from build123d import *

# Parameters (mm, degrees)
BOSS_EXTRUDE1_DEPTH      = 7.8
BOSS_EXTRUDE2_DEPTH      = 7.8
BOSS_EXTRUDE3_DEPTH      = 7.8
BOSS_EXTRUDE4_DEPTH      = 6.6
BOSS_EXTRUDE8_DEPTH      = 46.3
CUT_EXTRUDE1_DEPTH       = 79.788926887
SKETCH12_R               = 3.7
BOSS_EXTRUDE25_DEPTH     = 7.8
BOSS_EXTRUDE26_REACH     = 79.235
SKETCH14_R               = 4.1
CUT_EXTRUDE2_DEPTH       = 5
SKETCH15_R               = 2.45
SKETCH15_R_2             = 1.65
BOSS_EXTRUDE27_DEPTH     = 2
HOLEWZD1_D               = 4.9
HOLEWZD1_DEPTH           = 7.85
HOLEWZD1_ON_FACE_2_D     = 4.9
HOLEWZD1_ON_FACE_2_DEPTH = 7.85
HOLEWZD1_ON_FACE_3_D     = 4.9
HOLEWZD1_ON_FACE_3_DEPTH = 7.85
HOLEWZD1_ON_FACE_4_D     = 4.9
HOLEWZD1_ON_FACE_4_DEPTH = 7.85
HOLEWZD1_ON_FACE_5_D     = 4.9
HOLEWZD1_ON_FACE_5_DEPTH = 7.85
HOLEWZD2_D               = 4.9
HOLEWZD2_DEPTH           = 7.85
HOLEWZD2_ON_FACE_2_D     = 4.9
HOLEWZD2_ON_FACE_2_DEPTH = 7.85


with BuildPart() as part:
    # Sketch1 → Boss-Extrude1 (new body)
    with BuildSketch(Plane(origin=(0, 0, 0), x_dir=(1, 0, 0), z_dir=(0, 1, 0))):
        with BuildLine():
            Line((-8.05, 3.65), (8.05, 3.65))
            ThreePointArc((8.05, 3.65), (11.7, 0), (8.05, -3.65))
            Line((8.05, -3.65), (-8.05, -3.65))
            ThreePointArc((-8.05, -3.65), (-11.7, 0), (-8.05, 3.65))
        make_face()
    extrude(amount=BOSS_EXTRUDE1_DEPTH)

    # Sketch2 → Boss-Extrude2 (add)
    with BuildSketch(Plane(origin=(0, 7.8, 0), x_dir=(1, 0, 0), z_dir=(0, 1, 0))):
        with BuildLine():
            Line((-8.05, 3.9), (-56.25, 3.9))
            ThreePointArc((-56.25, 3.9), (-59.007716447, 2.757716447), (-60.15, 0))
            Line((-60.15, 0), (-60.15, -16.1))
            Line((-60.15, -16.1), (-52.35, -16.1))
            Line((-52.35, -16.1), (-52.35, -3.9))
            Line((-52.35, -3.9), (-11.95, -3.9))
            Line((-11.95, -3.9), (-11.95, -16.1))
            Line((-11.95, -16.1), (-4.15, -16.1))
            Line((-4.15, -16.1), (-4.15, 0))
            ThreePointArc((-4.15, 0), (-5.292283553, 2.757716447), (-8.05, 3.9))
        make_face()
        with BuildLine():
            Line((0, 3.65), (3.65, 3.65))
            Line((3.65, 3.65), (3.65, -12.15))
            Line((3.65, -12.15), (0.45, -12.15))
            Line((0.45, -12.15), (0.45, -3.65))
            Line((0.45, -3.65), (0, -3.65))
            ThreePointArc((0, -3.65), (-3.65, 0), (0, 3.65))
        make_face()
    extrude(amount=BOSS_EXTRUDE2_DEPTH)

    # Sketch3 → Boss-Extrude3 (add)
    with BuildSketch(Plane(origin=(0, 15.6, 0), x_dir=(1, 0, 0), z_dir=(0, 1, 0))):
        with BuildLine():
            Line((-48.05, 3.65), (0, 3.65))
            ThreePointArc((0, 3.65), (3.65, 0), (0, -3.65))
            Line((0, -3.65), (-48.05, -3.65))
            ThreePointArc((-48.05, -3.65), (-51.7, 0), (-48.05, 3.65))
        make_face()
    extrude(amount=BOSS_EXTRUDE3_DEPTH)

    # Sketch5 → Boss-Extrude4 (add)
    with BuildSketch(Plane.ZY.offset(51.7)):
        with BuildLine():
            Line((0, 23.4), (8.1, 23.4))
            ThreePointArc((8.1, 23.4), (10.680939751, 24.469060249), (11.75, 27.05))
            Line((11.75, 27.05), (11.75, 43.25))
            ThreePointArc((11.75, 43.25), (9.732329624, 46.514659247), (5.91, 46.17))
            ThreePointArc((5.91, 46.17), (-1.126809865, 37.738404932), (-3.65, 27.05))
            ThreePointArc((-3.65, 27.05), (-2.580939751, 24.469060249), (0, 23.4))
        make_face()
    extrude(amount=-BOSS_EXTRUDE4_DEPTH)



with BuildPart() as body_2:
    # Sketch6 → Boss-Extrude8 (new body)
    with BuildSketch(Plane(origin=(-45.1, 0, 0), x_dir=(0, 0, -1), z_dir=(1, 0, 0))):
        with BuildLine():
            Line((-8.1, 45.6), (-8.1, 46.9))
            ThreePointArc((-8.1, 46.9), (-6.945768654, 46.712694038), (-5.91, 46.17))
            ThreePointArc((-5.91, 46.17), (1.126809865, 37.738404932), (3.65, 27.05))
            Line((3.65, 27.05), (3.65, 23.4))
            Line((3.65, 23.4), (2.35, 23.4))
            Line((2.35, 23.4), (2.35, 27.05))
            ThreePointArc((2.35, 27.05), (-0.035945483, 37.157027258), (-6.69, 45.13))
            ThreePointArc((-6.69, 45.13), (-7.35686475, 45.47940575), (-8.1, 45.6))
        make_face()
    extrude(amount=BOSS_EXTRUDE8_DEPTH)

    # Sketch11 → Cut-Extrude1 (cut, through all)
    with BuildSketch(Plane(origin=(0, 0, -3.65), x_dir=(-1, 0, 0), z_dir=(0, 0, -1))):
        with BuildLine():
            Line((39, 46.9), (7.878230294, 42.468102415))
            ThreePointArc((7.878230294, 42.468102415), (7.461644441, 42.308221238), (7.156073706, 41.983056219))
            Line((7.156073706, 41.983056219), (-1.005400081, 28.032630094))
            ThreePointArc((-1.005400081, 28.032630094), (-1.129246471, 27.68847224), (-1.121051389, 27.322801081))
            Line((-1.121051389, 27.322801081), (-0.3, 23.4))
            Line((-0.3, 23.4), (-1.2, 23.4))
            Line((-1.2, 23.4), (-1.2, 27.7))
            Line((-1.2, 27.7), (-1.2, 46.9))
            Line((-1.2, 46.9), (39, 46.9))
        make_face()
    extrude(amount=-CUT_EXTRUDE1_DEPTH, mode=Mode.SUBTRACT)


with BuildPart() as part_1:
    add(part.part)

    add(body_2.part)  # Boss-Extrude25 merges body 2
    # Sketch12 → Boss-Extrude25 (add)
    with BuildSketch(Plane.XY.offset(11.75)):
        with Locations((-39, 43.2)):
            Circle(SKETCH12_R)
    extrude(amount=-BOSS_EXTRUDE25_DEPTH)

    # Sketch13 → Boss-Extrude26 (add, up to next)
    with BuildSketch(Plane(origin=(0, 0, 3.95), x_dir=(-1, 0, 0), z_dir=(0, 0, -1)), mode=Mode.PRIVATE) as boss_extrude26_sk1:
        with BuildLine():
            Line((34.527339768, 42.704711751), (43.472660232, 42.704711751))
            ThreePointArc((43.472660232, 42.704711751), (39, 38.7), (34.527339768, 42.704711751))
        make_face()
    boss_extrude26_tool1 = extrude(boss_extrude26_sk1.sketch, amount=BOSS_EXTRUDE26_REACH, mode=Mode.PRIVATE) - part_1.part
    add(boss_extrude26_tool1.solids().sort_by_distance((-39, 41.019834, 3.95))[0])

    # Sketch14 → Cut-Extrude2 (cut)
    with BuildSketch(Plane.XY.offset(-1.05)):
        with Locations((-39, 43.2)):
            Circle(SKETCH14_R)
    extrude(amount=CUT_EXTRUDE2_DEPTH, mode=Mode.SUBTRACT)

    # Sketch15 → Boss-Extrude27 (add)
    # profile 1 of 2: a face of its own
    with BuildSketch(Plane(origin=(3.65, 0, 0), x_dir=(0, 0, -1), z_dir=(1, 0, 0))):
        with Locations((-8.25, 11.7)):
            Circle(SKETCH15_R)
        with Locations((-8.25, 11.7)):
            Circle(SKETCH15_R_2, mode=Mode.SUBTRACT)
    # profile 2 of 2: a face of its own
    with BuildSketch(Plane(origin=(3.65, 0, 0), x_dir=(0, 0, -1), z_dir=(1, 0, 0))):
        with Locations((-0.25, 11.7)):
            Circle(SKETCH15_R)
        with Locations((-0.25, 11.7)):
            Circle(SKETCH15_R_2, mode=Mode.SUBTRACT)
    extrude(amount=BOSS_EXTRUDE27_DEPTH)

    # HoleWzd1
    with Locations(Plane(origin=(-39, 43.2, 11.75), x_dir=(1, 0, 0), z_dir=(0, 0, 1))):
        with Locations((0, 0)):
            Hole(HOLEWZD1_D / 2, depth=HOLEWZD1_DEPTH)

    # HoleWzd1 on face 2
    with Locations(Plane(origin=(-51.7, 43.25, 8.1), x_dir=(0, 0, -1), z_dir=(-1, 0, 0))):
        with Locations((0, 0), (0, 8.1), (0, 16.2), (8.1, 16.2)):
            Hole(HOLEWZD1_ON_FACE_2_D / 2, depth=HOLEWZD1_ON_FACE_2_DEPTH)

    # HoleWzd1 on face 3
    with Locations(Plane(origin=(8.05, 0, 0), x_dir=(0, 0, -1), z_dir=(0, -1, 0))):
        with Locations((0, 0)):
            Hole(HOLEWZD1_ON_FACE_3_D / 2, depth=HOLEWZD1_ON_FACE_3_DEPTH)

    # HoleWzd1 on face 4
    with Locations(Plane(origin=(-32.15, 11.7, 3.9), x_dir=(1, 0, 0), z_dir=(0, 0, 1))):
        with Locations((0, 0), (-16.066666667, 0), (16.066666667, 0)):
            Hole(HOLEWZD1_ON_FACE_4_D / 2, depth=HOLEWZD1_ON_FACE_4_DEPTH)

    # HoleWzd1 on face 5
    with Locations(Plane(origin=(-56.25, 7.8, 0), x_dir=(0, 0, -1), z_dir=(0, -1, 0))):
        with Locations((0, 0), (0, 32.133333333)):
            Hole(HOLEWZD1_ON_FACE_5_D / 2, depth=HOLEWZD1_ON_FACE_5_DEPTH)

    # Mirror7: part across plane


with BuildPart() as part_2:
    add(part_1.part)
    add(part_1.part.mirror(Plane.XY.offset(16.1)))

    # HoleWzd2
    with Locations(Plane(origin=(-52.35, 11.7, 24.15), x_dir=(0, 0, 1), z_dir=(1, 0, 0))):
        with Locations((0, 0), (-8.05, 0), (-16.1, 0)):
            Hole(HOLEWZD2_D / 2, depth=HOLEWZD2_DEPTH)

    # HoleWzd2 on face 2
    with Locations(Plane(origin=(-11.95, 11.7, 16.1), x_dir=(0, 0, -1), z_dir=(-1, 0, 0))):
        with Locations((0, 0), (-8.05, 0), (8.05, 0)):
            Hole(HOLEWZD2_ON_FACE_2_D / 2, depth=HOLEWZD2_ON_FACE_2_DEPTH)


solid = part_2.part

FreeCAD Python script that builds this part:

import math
import FreeCAD as App
import Part
import Sketcher

V = App.Vector

doc = App.newDocument("Part")
body = doc.addObject("PartDesign::Body", "Body")

# Sketch on XZ plane
sketch1 = body.newObject("Sketcher::SketchObject", "Sketch")
sketch1.AttachmentSupport = (doc.getObject("XZ_Plane"), [""])
sketch1.MapMode = "FlatFace"
sketch1.addGeometry([
    Part.LineSegment(V(8.1, -3.6, 0), V(-8.1, -3.6, 0)),
    Part.ArcOfCircle(Part.Circle(V(-8.1, 0, 0), V(0, 0, 1), 3.6), math.radians(90), math.radians(270)),
    Part.LineSegment(V(-8.1, 3.6, 0), V(8.1, 3.6, 0)),
    Part.ArcOfCircle(Part.Circle(V(8.1, 0, 0), V(0, 0, 1), 3.6), math.radians(-90), math.radians(90)),
], False)
sketch1.addConstraint([
    Sketcher.Constraint("Tangent", 0, 2, 1, 2),
    Sketcher.Constraint("Tangent", 1, 1, 2, 1),
    Sketcher.Constraint("Tangent", 2, 2, 3, 2),
    Sketcher.Constraint("Tangent", 3, 1, 0, 1),
    Sketcher.Constraint("Horizontal", 0),
    Sketcher.Constraint("Horizontal", 2),
    Sketcher.Constraint("Symmetric", 1, 3, 3, 3, -1, 1),
    Sketcher.Constraint("Radius", 1, 3.65),
    Sketcher.Constraint("DistanceX", 0, 2, 0, 1, 16.1),
])
pad1 = body.newObject("PartDesign::Pad", "Pad")
pad1.Profile = sketch1
pad1.Length = 7.8
pad1.Reversed = True

# Sketch on XZ plane
sketch2 = body.newObject("Sketcher::SketchObject", "Sketch001")
sketch2.AttachmentSupport = (doc.getObject("XZ_Plane"), [""])
sketch2.MapMode = "FlatFace"
sketch2.AttachmentOffset = App.Placement(V(0, 0, -7.8), App.Rotation())
sketch2.addGeometry([
    Part.LineSegment(V(-8.05, -3.9, 0), V(-56.25, -3.9, 0)),  # 0
    Part.ArcOfCircle(Part.Circle(V(-56.25, 0, 0), V(0, 0, 1), 3.9), math.radians(180), math.radians(270)),  # 1
    Part.LineSegment(V(-60.15, 0, 0), V(-60.15, 16.1, 0)),  # 2
    Part.LineSegment(V(-60.15, 16.1, 0), V(-52.35, 16.1, 0)),  # 3
    Part.LineSegment(V(-52.35, 16.1, 0), V(-52.35, 3.9, 0)),  # 4
    Part.LineSegment(V(-52.35, 3.9, 0), V(-11.95, 3.9, 0)),  # 5
    Part.LineSegment(V(-11.95, 3.9, 0), V(-11.95, 16.1, 0)),  # 6
    Part.LineSegment(V(-11.95, 16.1, 0), V(-4.15, 16.1, 0)),  # 7
    Part.LineSegment(V(-4.15, 16.1, 0), V(-4.15, 0, 0)),  # 8
    Part.ArcOfCircle(Part.Circle(V(-8.05, 0, 0), V(0, 0, 1), 3.9), math.radians(-90), math.radians(0)),  # 9
    Part.LineSegment(V(3.65, -3.65, 0), V(0, -3.65, 0)),  # 10
    Part.ArcOfCircle(Part.Circle(V(0, 0, 0), V(0, 0, 1), 3.65), math.radians(90), math.radians(270)),  # 11
    Part.LineSegment(V(0, 3.65, 0), V(0.45, 3.65, 0)),  # 12
    Part.LineSegment(V(0.45, 3.65, 0), V(0.45, 12.15, 0)),  # 13
    Part.LineSegment(V(0.45, 12.15, 0), V(3.65, 12.15, 0)),  # 14
    Part.LineSegment(V(3.65, 12.15, 0), V(3.65, -3.65, 0)),  # 15
], False)
sketch2.addConstraint([
    Sketcher.Constraint("Tangent", 0, 2, 1, 2),
    Sketcher.Constraint("Tangent", 1, 1, 2, 1),
    Sketcher.Constraint("Coincident", 2, 2, 3, 1),
    Sketcher.Constraint("Coincident", 3, 2, 4, 1),
    Sketcher.Constraint("Coincident", 4, 2, 5, 1),
    Sketcher.Constraint("Coincident", 5, 2, 6, 1),
    Sketcher.Constraint("Coincident", 6, 2, 7, 1),
    Sketcher.Constraint("Coincident", 7, 2, 8, 1),
    Sketcher.Constraint("Tangent", 8, 2, 9, 2),
    Sketcher.Constraint("Tangent", 9, 1, 0, 1),
    Sketcher.Constraint("Tangent", 10, 2, 11, 2),
    Sketcher.Constraint("Tangent", 11, 1, 12, 1),
    Sketcher.Constraint("Coincident", 12, 2, 13, 1),
    Sketcher.Constraint("Coincident", 13, 2, 14, 1),
    Sketcher.Constraint("Coincident", 14, 2, 15, 1),
    Sketcher.Constraint("Coincident", 15, 2, 10, 1),
    Sketcher.Constraint("Horizontal", 0),
    Sketcher.Constraint("Vertical", 2),
    Sketcher.Constraint("Horizontal", 3),
    Sketcher.Constraint("Vertical", 4),
    Sketcher.Constraint("Horizontal", 5),
    Sketcher.Constraint("Vertical", 6),
    Sketcher.Constraint("Horizontal", 7),
    Sketcher.Constraint("Vertical", 8),
    Sketcher.Constraint("Horizontal", 10),
    Sketcher.Constraint("Horizontal", 12),
    Sketcher.Constraint("Vertical", 13),
    Sketcher.Constraint("Horizontal", 14),
    Sketcher.Constraint("Vertical", 15),
    Sketcher.Constraint("Coincident", 11, 3, -1, 1),
    Sketcher.Constraint("Equal", 1, 9),
    Sketcher.Constraint("PointOnObject", 1, 3, -1),
    Sketcher.Constraint("Horizontal", 3, 2, 6, 2),
    Sketcher.Constraint("Equal", 3, 7),
    Sketcher.Constraint("Radius", 1, 3.9),
    Sketcher.Constraint("Radius", 11, 3.65),
    Sketcher.Constraint("DistanceX", 0, 2, 0, 1, 48.2),
    Sketcher.Constraint("DistanceX", 3, 1, 3, 2, 7.8),
    Sketcher.Constraint("DistanceX", 14, 1, 14, 2, 3.2),
    Sketcher.Constraint("DistanceY", 2, 1, 2, 2, 16.1),
    Sketcher.Constraint("DistanceY", 4, 2, 4, 1, 12.2),
    Sketcher.Constraint("DistanceY", 13, 1, 13, 2, 8.5),
    Sketcher.Constraint("DistanceX", 10, 2, 10, 1, 3.65),
    Sketcher.Constraint("DistanceX", 8, 2, 12, 2, 4.6),
])
pad2 = body.newObject("PartDesign::Pad", "Pad001")
pad2.Profile = sketch2
pad2.Length = 7.8
pad2.Reversed = True

# Sketch on XZ plane
sketch3 = body.newObject("Sketcher::SketchObject", "Sketch002")
sketch3.AttachmentSupport = (doc.getObject("XZ_Plane"), [""])
sketch3.MapMode = "FlatFace"
sketch3.AttachmentOffset = App.Placement(V(0, 0, -15.6), App.Rotation())
sketch3.addGeometry([
    Part.LineSegment(V(0, -3.6, 0), V(-48, -3.6, 0)),
    Part.ArcOfCircle(Part.Circle(V(-48, 0, 0), V(0, 0, 1), 3.6), math.radians(90), math.radians(270)),
    Part.LineSegment(V(-48, 3.6, 0), V(0, 3.6, 0)),
    Part.ArcOfCircle(Part.Circle(V(0, 0, 0), V(0, 0, 1), 3.6), math.radians(-90), math.radians(90)),
], False)
sketch3.addConstraint([
    Sketcher.Constraint("Tangent", 0, 2, 1, 2),
    Sketcher.Constraint("Tangent", 1, 1, 2, 1),
    Sketcher.Constraint("Tangent", 2, 2, 3, 2),
    Sketcher.Constraint("Tangent", 3, 1, 0, 1),
    Sketcher.Constraint("Horizontal", 0),
    Sketcher.Constraint("Horizontal", 2),
    Sketcher.Constraint("Coincident", 3, 3, -1, 1),
    Sketcher.Constraint("Radius", 1, 3.65),
    Sketcher.Constraint("DistanceX", 0, 2, 0, 1, 48.05),
])
pad3 = body.newObject("PartDesign::Pad", "Pad002")
pad3.Profile = sketch3
pad3.Length = 7.8
pad3.Reversed = True

# Sketch on YZ plane
sketch4 = body.newObject("Sketcher::SketchObject", "Sketch003")
sketch4.AttachmentSupport = (doc.getObject("YZ_Plane"), [""])
sketch4.MapMode = "FlatFace"
sketch4.AttachmentOffset = App.Placement(V(0, 0, -51.7), App.Rotation())
sketch4.addGeometry([
    Part.LineSegment(V(23.4, 0, 0), V(23.4, 8.1, 0)),  # 0
    Part.ArcOfCircle(Part.Circle(V(27.1, 8.1, 0), V(0, 0, 1), 3.7), math.radians(90), math.radians(180)),  # 1
    Part.LineSegment(V(27.1, 11.8, 0), V(43.2, 11.8, 0)),  # 2
    Part.ArcOfCircle(Part.Circle(V(43.2, 8.1, 0), V(0, 0, 1), 3.6), math.radians(-37), math.radians(90)),  # 3
    Part.ArcOfCircle(Part.Circle(V(27.1, 20.3, 0), V(0, 0, 1), 23.9), math.radians(-90), math.radians(-37)),  # 4
    Part.ArcOfCircle(Part.Circle(V(27.1, 0, 0), V(0, 0, 1), 3.7), math.radians(-180), math.radians(-90)),  # 5
], False)
sketch4.addConstraint([
    Sketcher.Constraint("Tangent", 0, 2, 1, 2),
    Sketcher.Constraint("Tangent", 1, 1, 2, 1),
    Sketcher.Constraint("Tangent", 2, 2, 3, 2),
    Sketcher.Constraint("Tangent", 3, 1, 4, 2),
    Sketcher.Constraint("Tangent", 4, 1, 5, 2),
    Sketcher.Constraint("Tangent", 5, 1, 0, 1),
    Sketcher.Constraint("Vertical", 0),
    Sketcher.Constraint("Horizontal", 2),
    Sketcher.Constraint("Equal", 1, 3),
    Sketcher.Constraint("Equal", 3, 5),
    Sketcher.Constraint("PointOnObject", 5, 3, -1),
    Sketcher.Constraint("Vertical", 1, 3, 4, 3),
    Sketcher.Constraint("Radius", 4, 23.9),
    Sketcher.Constraint("Radius", 1, 3.65),
    Sketcher.Constraint("DistanceX", 2, 1, 2, 2, 16.2),
    Sketcher.Constraint("DistanceX", -1, 1, 0, 2, 23.4),
])
pad4 = body.newObject("PartDesign::Pad", "Pad003")
pad4.Profile = sketch4
pad4.Length = 6.6
body2 = doc.addObject("PartDesign::Body", "Body001")

# Sketch on YZ plane
sketch5 = body2.newObject("Sketcher::SketchObject", "Sketch004")
sketch5.AttachmentSupport = (doc.getObject("YZ_Plane001"), [""])
sketch5.MapMode = "FlatFace"
sketch5.AttachmentOffset = App.Placement(V(0, 0, -45.1), App.Rotation())
sketch5.addGeometry([
    Part.LineSegment(V(46.9, 8.1, 0), V(45.6, 8.1, 0)),  # 0
    Part.ArcOfCircle(Part.Circle(V(43.2, 8.1, 0), V(0, 0, 1), 2.4), math.radians(-37), math.radians(0)),  # 1
    Part.ArcOfCircle(Part.Circle(V(27.1, 20.2, 0), V(0, 0, 1), 22.6), math.radians(-90), math.radians(-37)),  # 2
    Part.LineSegment(V(27.1, -2.4, 0), V(23.4, -2.4, 0)),  # 3
    Part.LineSegment(V(23.4, -2.4, 0), V(23.4, -3.6, 0)),  # 4
    Part.LineSegment(V(23.4, -3.6, 0), V(27.1, -3.6, 0)),  # 5
    Part.ArcOfCircle(Part.Circle(V(27.1, 20.3, 0), V(0, 0, 1), 23.9), math.radians(-90), math.radians(-37)),  # 6
    Part.ArcOfCircle(Part.Circle(V(43.3, 8.1, 0), V(0, 0, 1), 3.6), math.radians(-37), math.radians(0)),  # 7
], False)
sketch5.addConstraint([
    Sketcher.Constraint("Coincident", 0, 2, 1, 2),
    Sketcher.Constraint("Tangent", 1, 1, 2, 2),
    Sketcher.Constraint("Tangent", 2, 1, 3, 1),
    Sketcher.Constraint("Coincident", 3, 2, 4, 1),
    Sketcher.Constraint("Coincident", 4, 2, 5, 1),
    Sketcher.Constraint("Tangent", 5, 2, 6, 1),
    Sketcher.Constraint("Tangent", 6, 2, 7, 1),
    Sketcher.Constraint("Coincident", 7, 2, 0, 1),
    Sketcher.Constraint("Horizontal", 0),
    Sketcher.Constraint("Horizontal", 3),
    Sketcher.Constraint("Vertical", 4),
    Sketcher.Constraint("Horizontal", 5),
    Sketcher.Constraint("Coincident", 6, 3, 2, 3),
    Sketcher.Constraint("Coincident", 7, 3, 1, 3),
    Sketcher.Constraint("Horizontal", 7, 3, 0, 2),
    Sketcher.Constraint("Radius", 2, 22.6),
    Sketcher.Constraint("Radius", 6, 23.9),
    Sketcher.Constraint("Radius", 1, 2.35),
    Sketcher.Constraint("DistanceX", 3, 2, 3, 1, 3.65),
    Sketcher.Constraint("DistanceY", -1, 1, 1, 3, 8.1),
    Sketcher.Constraint("DistanceX", -1, 1, 0, 2, 45.6),
    Sketcher.Constraint("DistanceX", -1, 1, 3, 2, 23.4),
])
pad5 = body2.newObject("PartDesign::Pad", "Pad004")
pad5.Profile = sketch5
pad5.Length = 46.3

# Sketch on XY plane
sketch6 = body2.newObject("Sketcher::SketchObject", "Sketch005")
sketch6.AttachmentSupport = (doc.getObject("XY_Plane001"), [""])
sketch6.MapMode = "FlatFace"
sketch6.AttachmentOffset = App.Placement(V(0, 0, -3.65), App.Rotation())
sketch6.addGeometry([
    Part.LineSegment(V(-7.9, 42.5, 0), V(-39, 46.9, 0)),  # 0
    Part.LineSegment(V(-39, 46.9, 0), V(1.2, 46.9, 0)),  # 1
    Part.LineSegment(V(1.2, 46.9, 0), V(1.2, 23.4, 0)),  # 2
    Part.LineSegment(V(1.2, 23.4, 0), V(0.3, 23.4, 0)),  # 3
    Part.LineSegment(V(0.3, 23.4, 0), V(1.1, 27.3, 0)),  # 4
    Part.ArcOfCircle(Part.Circle(V(0.1, 27.5, 0), V(0, 0, 1), 1), math.radians(-12), math.radians(30)),  # 5
    Part.LineSegment(V(1, 28, 0), V(-7.2, 42, 0)),  # 6
    Part.ArcOfCircle(Part.Circle(V(-8, 41.5, 0), V(0, 0, 1), 1), math.radians(30), math.radians(82)),  # 7
], False)
sketch6.addConstraint([
    Sketcher.Constraint("Coincident", 0, 2, 1, 1),
    Sketcher.Constraint("Coincident", 1, 2, 2, 1),
    Sketcher.Constraint("Coincident", 2, 2, 3, 1),
    Sketcher.Constraint("Coincident", 3, 2, 4, 1),
    Sketcher.Constraint("Tangent", 4, 2, 5, 1),
    Sketcher.Constraint("Tangent", 5, 2, 6, 1),
    Sketcher.Constraint("Tangent", 6, 2, 7, 1),
    Sketcher.Constraint("Tangent", 7, 2, 0, 1),
    Sketcher.Constraint("Horizontal", 1),
    Sketcher.Constraint("Vertical", 2),
    Sketcher.Constraint("Horizontal", 3),
    Sketcher.Constraint("Equal", 5, 7),
    Sketcher.Constraint("Radius", 5, 1.0),
    Sketcher.Constraint("DistanceX", 1, 1, 1, 2, 40.2),
    Sketcher.Constraint("DistanceX", 3, 2, 3, 1, 0.9),
    Sketcher.Constraint("DistanceY", 2, 2, 2, 1, 23.5),
    Sketcher.Constraint("DistanceX", 0, 2, -1, 1, 39.0),
    Sketcher.Constraint("DistanceY", -1, 1, 0, 2, 46.9),
    Sketcher.Constraint("DistanceY", -1, 1, 4, 2, 27.322801),
    Sketcher.Constraint("DistanceX", -1, 1, 5, 2, 1.0054),
    Sketcher.Constraint("Distance", 0, 31.435748),
    Sketcher.Constraint("DistanceX", -1, 1, 5, 3, 0.142261),
])
pocket1 = body2.newObject("PartDesign::Pocket", "Pocket")
pocket1.Profile = sketch6
pocket1.Type = "ThroughAll"
pocket1.Reversed = True
doc.recompute()

boolean = body.newObject("PartDesign::Boolean", "Boolean")
boolean.Type = "Fuse"
boolean.addObjects([body2])

# Sketch on XY plane
sketch7 = body.newObject("Sketcher::SketchObject", "Sketch006")
sketch7.AttachmentSupport = (doc.getObject("XY_Plane"), [""])
sketch7.MapMode = "FlatFace"
sketch7.AttachmentOffset = App.Placement(V(0, 0, 11.75), App.Rotation())
sketch7.addGeometry(Part.Circle(V(-39, 43.2, 0), V(0, 0, 1), 3.7), False)
sketch7.addConstraint([
    Sketcher.Constraint("Diameter", 0, 7.4),
    Sketcher.Constraint("DistanceX", 0, 3, -1, 1, 39.0),
    Sketcher.Constraint("DistanceY", -1, 1, 0, 3, 43.2),
])
pad6 = body.newObject("PartDesign::Pad", "Pad005")
pad6.Profile = sketch7
pad6.Length = 7.8
pad6.Reversed = True

# Sketch on XY plane
sketch8 = body.newObject("Sketcher::SketchObject", "Sketch007")
sketch8.AttachmentSupport = (doc.getObject("XY_Plane"), [""])
sketch8.MapMode = "FlatFace"
sketch8.AttachmentOffset = App.Placement(V(0, 0, 3.95), App.Rotation())
sketch8.addGeometry([
    Part.LineSegment(V(-43.5, 42.7, 0), V(-34.5, 42.7, 0)),
    Part.ArcOfCircle(Part.Circle(V(-39, 43.2, 0), V(0, 0, 1), 4.5), math.radians(-174), math.radians(-6)),
], False)
sketch8.addConstraint([
    Sketcher.Constraint("Coincident", 0, 1, 1, 1),
    Sketcher.Constraint("Coincident", 1, 2, 0, 2),
    Sketcher.Constraint("Horizontal", 0),
    Sketcher.Constraint("Radius", 1, 4.5),
    Sketcher.Constraint("DistanceX", 1, 3, -1, 1, 39.0),
    Sketcher.Constraint("DistanceY", -1, 1, 1, 3, 43.2),
    Sketcher.Constraint("DistanceX", 0, 1, 0, 2, 8.94532),
])
pad7 = body.newObject("PartDesign::Pad", "Pad006")
pad7.Profile = sketch8
pad7.Type = "UpToFirst"
pad7.Reversed = True

# Sketch on XY plane
sketch9 = body.newObject("Sketcher::SketchObject", "Sketch008")
sketch9.AttachmentSupport = (doc.getObject("XY_Plane"), [""])
sketch9.MapMode = "FlatFace"
sketch9.AttachmentOffset = App.Placement(V(0, 0, -1.05), App.Rotation())
sketch9.addGeometry(Part.Circle(V(-39, 43.2, 0), V(0, 0, 1), 4.1), False)
sketch9.addConstraint([
    Sketcher.Constraint("Diameter", 0, 8.2),
    Sketcher.Constraint("DistanceX", 0, 3, -1, 1, 39.0),
    Sketcher.Constraint("DistanceY", -1, 1, 0, 3, 43.2),
])
pocket2 = body.newObject("PartDesign::Pocket", "Pocket001")
pocket2.Profile = sketch9
pocket2.Length = 5
pocket2.Reversed = True

# Sketch on YZ plane
sketch10 = body.newObject("Sketcher::SketchObject", "Sketch009")
sketch10.AttachmentSupport = (doc.getObject("YZ_Plane"), [""])
sketch10.MapMode = "FlatFace"
sketch10.AttachmentOffset = App.Placement(V(0, 0, 3.65), App.Rotation())
sketch10.addGeometry([
    Part.Circle(V(11.7, 8.2, 0), V(0, 0, 1), 2.5),
    Part.Circle(V(11.7, 8.2, 0), V(0, 0, 1), 1.6),
    Part.Circle(V(11.7, 0.2, 0), V(0, 0, 1), 2.5),
    Part.Circle(V(11.7, 0.2, 0), V(0, 0, 1), 1.6),
], False)
sketch10.addConstraint([
    Sketcher.Constraint("Coincident", 1, 3, 0, 3),
    Sketcher.Constraint("Coincident", 3, 3, 2, 3),
    Sketcher.Constraint("Equal", 0, 2),
    Sketcher.Constraint("Equal", 1, 3),
    Sketcher.Constraint("Vertical", 1, 3, 2, 3),
    Sketcher.Constraint("Diameter", 0, 4.9),
    Sketcher.Constraint("Diameter", 1, 3.3),
    Sketcher.Constraint("DistanceY", 2, 3, 0, 3, 8.0),
    Sketcher.Constraint("DistanceX", -1, 1, 0, 3, 11.7),
    Sketcher.Constraint("DistanceY", -1, 1, 0, 3, 8.25),
])
pad8 = body.newObject("PartDesign::Pad", "Pad007")
pad8.Profile = sketch10
pad8.Length = 2

# Sketch on XY plane
sketch11 = body.newObject("Sketcher::SketchObject", "Sketch010")
sketch11.AttachmentSupport = (doc.getObject("XY_Plane"), [""])
sketch11.MapMode = "FlatFace"
sketch11.AttachmentOffset = App.Placement(V(0, 0, 11.75), App.Rotation())
sketch11.addGeometry(Part.Circle(V(-39, 43.2, 0), V(0, 0, 1), 2.5), False)
sketch11.addConstraint([
    Sketcher.Constraint("Diameter", 0, 4.9),
    Sketcher.Constraint("DistanceX", 0, 3, -1, 1, 39.0),
    Sketcher.Constraint("DistanceY", -1, 1, 0, 3, 43.2),
])
doc.recompute()
hole = body.newObject("PartDesign::Hole", "Hole")
hole.Profile = sketch11
hole.ThreadType = "None"
hole.Diameter = 4.9
hole.DepthType = "Dimension"
hole.Depth = 7.85
hole.DrillPoint = "Flat"

# Sketch on YZ plane
sketch12 = body.newObject("Sketcher::SketchObject", "Sketch011")
sketch12.AttachmentSupport = (doc.getObject("YZ_Plane"), [""])
sketch12.MapMode = "FlatFace"
sketch12.AttachmentOffset = App.Placement(V(0, 0, -51.7), App.Rotation())
sketch12.addGeometry([
    Part.Circle(V(43.2, 8.1, 0), V(0, 0, 1), 2.5),
    Part.Circle(V(35.1, 8.1, 0), V(0, 0, 1), 2.5),
    Part.Circle(V(27.1, 8.1, 0), V(0, 0, 1), 2.5),
    Part.Circle(V(27.1, 0, 0), V(0, 0, 1), 2.5),
], False)
sketch12.addConstraint([
    Sketcher.Constraint("Equal", 0, 1),
    Sketcher.Constraint("Equal", 1, 2),
    Sketcher.Constraint("Equal", 2, 3),
    Sketcher.Constraint("PointOnObject", 3, 3, -1),
    Sketcher.Constraint("Horizontal", 0, 3, 1, 3),
    Sketcher.Constraint("Horizontal", 1, 3, 2, 3),
    Sketcher.Constraint("Vertical", 2, 3, 3, 3),
    Sketcher.Constraint("Diameter", 0, 4.9),
    Sketcher.Constraint("DistanceY", -1, 1, 0, 3, 8.1),
    Sketcher.Constraint("DistanceX", 1, 3, 0, 3, 8.1),
    Sketcher.Constraint("DistanceX", 2, 3, 1, 3, 8.1),
    Sketcher.Constraint("DistanceX", -1, 1, 0, 3, 43.25),
])
doc.recompute()
hole2 = body.newObject("PartDesign::Hole", "Hole001")
hole2.Profile = sketch12
hole2.ThreadType = "None"
hole2.Diameter = 4.9
hole2.DepthType = "Dimension"
hole2.Depth = 7.85
hole2.DrillPoint = "Flat"
hole2.Reversed = True

# Sketch on XZ plane
sketch13 = body.newObject("Sketcher::SketchObject", "Sketch012")
sketch13.AttachmentSupport = (doc.getObject("XZ_Plane"), [""])
sketch13.MapMode = "FlatFace"
sketch13.addGeometry(Part.Circle(V(8.1, 0, 0), V(0, 0, 1), 2.5), False)
sketch13.addConstraint([
    Sketcher.Constraint("PointOnObject", 0, 3, -1),
    Sketcher.Constraint("Diameter", 0, 4.9),
    Sketcher.Constraint("DistanceX", -1, 1, 0, 3, 8.05),
])
doc.recompute()
hole3 = body.newObject("PartDesign::Hole", "Hole002")
hole3.Profile = sketch13
hole3.ThreadType = "None"
hole3.Diameter = 4.9
hole3.DepthType = "Dimension"
hole3.Depth = 7.85
hole3.DrillPoint = "Flat"

# Sketch on XY plane
sketch14 = body.newObject("Sketcher::SketchObject", "Sketch013")
sketch14.AttachmentSupport = (doc.getObject("XY_Plane"), [""])
sketch14.MapMode = "FlatFace"
sketch14.AttachmentOffset = App.Placement(V(0, 0, 3.9), App.Rotation())
sketch14.addGeometry([
    Part.Circle(V(-32.1, 11.7, 0), V(0, 0, 1), 2.5),
    Part.Circle(V(-48.2, 11.7, 0), V(0, 0, 1), 2.5),
    Part.Circle(V(-16.1, 11.7, 0), V(0, 0, 1), 2.5),
], False)
sketch14.addConstraint([
    Sketcher.Constraint("Equal", 0, 1),
    Sketcher.Constraint("Equal", 1, 2),
    Sketcher.Constraint("Horizontal", 0, 3, 1, 3),
    Sketcher.Constraint("Horizontal", 1, 3, 2, 3),
    Sketcher.Constraint("Diameter", 0, 4.9),
    Sketcher.Constraint("DistanceY", -1, 1, 0, 3, 11.7),
    Sketcher.Constraint("DistanceX", 0, 3, -1, 1, 32.15),
    Sketcher.Constraint("DistanceX", 1, 3, -1, 1, 48.216667),
    Sketcher.Constraint("DistanceX", 2, 3, -1, 1, 16.083333),
])
doc.recompute()
hole4 = body.newObject("PartDesign::Hole", "Hole003")
hole4.Profile = sketch14
hole4.ThreadType = "None"
hole4.Diameter = 4.9
hole4.DepthType = "Dimension"
hole4.Depth = 7.85
hole4.DrillPoint = "Flat"

# Sketch on XZ plane
sketch15 = body.newObject("Sketcher::SketchObject", "Sketch014")
sketch15.AttachmentSupport = (doc.getObject("XZ_Plane"), [""])
sketch15.MapMode = "FlatFace"
sketch15.AttachmentOffset = App.Placement(V(0, 0, -7.8), App.Rotation())
sketch15.addGeometry([
    Part.Circle(V(-56.2, 0, 0), V(0, 0, 1), 2.5),
    Part.Circle(V(-24.1, 0, 0), V(0, 0, 1), 2.5),
], False)
sketch15.addConstraint([
    Sketcher.Constraint("Equal", 0, 1),
    Sketcher.Constraint("PointOnObject", 0, 3, -1),
    Sketcher.Constraint("PointOnObject", 1, 3, -1),
    Sketcher.Constraint("Diameter", 0, 4.9),
    Sketcher.Constraint("DistanceX", 0, 3, -1, 1, 56.25),
    Sketcher.Constraint("DistanceX", 1, 3, -1, 1, 24.116667),
])
doc.recompute()
hole5 = body.newObject("PartDesign::Hole", "Hole004")
hole5.Profile = sketch15
hole5.ThreadType = "None"
hole5.Diameter = 4.9
hole5.DepthType = "Dimension"
hole5.Depth = 7.85
hole5.DrillPoint = "Flat"
body3 = doc.addObject("PartDesign::Body", "Body002")
doc.recompute()

body3.BaseFeature = body
doc.recompute()

mirroring = doc.addObject("Part::Mirroring", "Mirroring")
mirroring.Source = body
mirroring.Base = V(0, 0, 16.1)
mirroring.Normal = V(0, 0, 1)
body4 = doc.addObject("PartDesign::Body", "Body003")
body4.BaseFeature = mirroring
boolean2 = body3.newObject("PartDesign::Boolean", "Boolean001")
boolean2.Type = "Fuse"
boolean2.addObjects([body4])
doc.recompute()

# Sketch on YZ plane
sketch16 = body3.newObject("Sketcher::SketchObject", "Sketch015")
sketch16.AttachmentSupport = (doc.getObject("YZ_Plane002"), [""])
sketch16.MapMode = "FlatFace"
sketch16.AttachmentOffset = App.Placement(V(0, 0, -52.35), App.Rotation())
sketch16.addGeometry([
    Part.Circle(V(11.7, 24.1, 0), V(0, 0, 1), 2.5),
    Part.Circle(V(11.7, 16.1, 0), V(0, 0, 1), 2.5),
    Part.Circle(V(11.7, 8.1, 0), V(0, 0, 1), 2.5),
], False)
sketch16.addConstraint([
    Sketcher.Constraint("Equal", 0, 1),
    Sketcher.Constraint("Equal", 1, 2),
    Sketcher.Constraint("Vertical", 0, 3, 1, 3),
    Sketcher.Constraint("Vertical", 1, 3, 2, 3),
    Sketcher.Constraint("Diameter", 0, 4.9),
    Sketcher.Constraint("DistanceX", -1, 1, 0, 3, 11.7),
    Sketcher.Constraint("DistanceY", -1, 1, 1, 3, 16.1),
    Sketcher.Constraint("DistanceY", 2, 3, 0, 3, 16.1),
    Sketcher.Constraint("DistanceY", -1, 1, 0, 3, 24.15),
])
doc.recompute()
hole6 = body3.newObject("PartDesign::Hole", "Hole005")
hole6.Profile = sketch16
hole6.ThreadType = "None"
hole6.Diameter = 4.9
hole6.DepthType = "Dimension"
hole6.Depth = 7.85
hole6.DrillPoint = "Flat"

# Sketch on YZ plane
sketch17 = body3.newObject("Sketcher::SketchObject", "Sketch016")
sketch17.AttachmentSupport = (doc.getObject("YZ_Plane002"), [""])
sketch17.MapMode = "FlatFace"
sketch17.AttachmentOffset = App.Placement(V(0, 0, -11.95), App.Rotation())
sketch17.addGeometry([
    Part.Circle(V(11.7, 16.1, 0), V(0, 0, 1), 2.5),
    Part.Circle(V(11.7, 24.1, 0), V(0, 0, 1), 2.5),
    Part.Circle(V(11.7, 8.1, 0), V(0, 0, 1), 2.5),
], False)
sketch17.addConstraint([
    Sketcher.Constraint("Equal", 0, 1),
    Sketcher.Constraint("Equal", 1, 2),
    Sketcher.Constraint("Vertical", 0, 3, 1, 3),
    Sketcher.Constraint("Vertical", 1, 3, 2, 3),
    Sketcher.Constraint("Diameter", 0, 4.9),
    Sketcher.Constraint("DistanceX", -1, 1, 0, 3, 11.7),
    Sketcher.Constraint("DistanceY", -1, 1, 0, 3, 16.1),
    Sketcher.Constraint("DistanceY", 2, 3, 1, 3, 16.1),
    Sketcher.Constraint("DistanceY", -1, 1, 1, 3, 24.15),
])
doc.recompute()
hole7 = body3.newObject("PartDesign::Hole", "Hole006")
hole7.Profile = sketch17
hole7.ThreadType = "None"
hole7.Diameter = 4.9
hole7.DepthType = "Dimension"
hole7.Depth = 7.85
hole7.DrillPoint = "Flat"
hole7.Reversed = True
mirroring.Visibility = False

doc.recompute()
